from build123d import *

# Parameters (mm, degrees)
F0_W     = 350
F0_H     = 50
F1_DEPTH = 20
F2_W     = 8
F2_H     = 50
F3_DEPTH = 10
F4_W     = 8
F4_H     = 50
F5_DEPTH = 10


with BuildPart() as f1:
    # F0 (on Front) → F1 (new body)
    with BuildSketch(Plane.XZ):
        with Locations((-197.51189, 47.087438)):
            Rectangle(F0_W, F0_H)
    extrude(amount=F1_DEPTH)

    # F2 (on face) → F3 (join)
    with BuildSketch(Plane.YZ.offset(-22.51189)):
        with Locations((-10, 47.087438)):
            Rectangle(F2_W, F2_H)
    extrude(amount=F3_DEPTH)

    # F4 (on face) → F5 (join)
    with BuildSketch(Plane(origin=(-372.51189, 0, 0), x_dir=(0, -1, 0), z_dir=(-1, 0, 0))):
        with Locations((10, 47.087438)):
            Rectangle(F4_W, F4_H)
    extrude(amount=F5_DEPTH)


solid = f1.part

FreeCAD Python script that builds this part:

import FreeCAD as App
import Part
import Sketcher


def add_polygon(sketch, points):
    """Adds a closed chain of lines whose ends are joined by coincident constraints."""
    first, n = sketch.GeometryCount, len(points)
    for a, b in zip(points, points[1:] + points[:1]):
        sketch.addGeometry(Part.LineSegment(App.Vector(*a, 0), App.Vector(*b, 0)), False)
    for i in range(n):
        sketch.addConstraint(Sketcher.Constraint("Coincident", first + i, 2, first + (i + 1) % n, 1))

doc = App.newDocument("Part")
body = doc.addObject("PartDesign::Body", "Body")

sketch1 = doc.addObject("Sketcher::SketchObject", "Sketch")
body.addObject(sketch1)
sketch1.AttachmentSupport = (doc.XZ_Plane, [""])
sketch1.MapMode = "FlatFace"
add_polygon(sketch1, [(-372.51189, 72.087438), (-372.51189, 22.087438), (-22.51189, 22.087438), (-22.51189, 72.087438)])
sketch1.addConstraint(Sketcher.Constraint("Vertical", 0))
sketch1.addConstraint(Sketcher.Constraint("Horizontal", 1))
sketch1.addConstraint(Sketcher.Constraint("Vertical", 2))
sketch1.addConstraint(Sketcher.Constraint("Horizontal", 3))
sketch1.addConstraint(Sketcher.Constraint("DistanceX", 1, 1, 1, 2, 350.0))
sketch1.addConstraint(Sketcher.Constraint("DistanceY", 0, 2, 0, 1, 50.0))
sketch1.addConstraint(Sketcher.Constraint("DistanceX", 0, 2, -1, 1, 372.51189))
sketch1.addConstraint(Sketcher.Constraint("DistanceY", -1, 1, 2, 2, 72.087438))
pad1 = doc.addObject("PartDesign::Pad", "Pad")
body.addObject(pad1)
pad1.Profile = sketch1
pad1.Length = 20

sketch2 = doc.addObject("Sketcher::SketchObject", "Sketch001")
body.addObject(sketch2)
sketch2.AttachmentSupport = (doc.YZ_Plane, [""])
sketch2.MapMode = "FlatFace"
sketch2.AttachmentOffset = App.Placement(App.Vector(0, 0, -22.51189), App.Rotation())
add_polygon(sketch2, [(-14, 72.087438), (-14, 22.087438), (-6, 22.087438), (-6, 72.087438)])
sketch2.addConstraint(Sketcher.Constraint("Vertical", 0))
sketch2.addConstraint(Sketcher.Constraint("Horizontal", 1))
sketch2.addConstraint(Sketcher.Constraint("Vertical", 2))
sketch2.addConstraint(Sketcher.Constraint("Horizontal", 3))
sketch2.addConstraint(Sketcher.Constraint("DistanceX", 1, 1, 1, 2, 8.0))
sketch2.addConstraint(Sketcher.Constraint("DistanceY", 0, 2, 0, 1, 50.0))
sketch2.addConstraint(Sketcher.Constraint("DistanceX", 0, 2, -1, 1, 14.0))
sketch2.addConstraint(Sketcher.Constraint("DistanceY", -1, 1, 2, 2, 72.087438))
pad2 = doc.addObject("PartDesign::Pad", "Pad001")
body.addObject(pad2)
pad2.Profile = sketch2
pad2.Length = 10

sketch3 = doc.addObject("Sketcher::SketchObject", "Sketch002")
body.addObject(sketch3)
sketch3.AttachmentSupport = (doc.YZ_Plane, [""])
sketch3.MapMode = "FlatFace"
sketch3.AttachmentOffset = App.Placement(App.Vector(0, 0, -372.51189), App.Rotation())
add_polygon(sketch3, [(-6, 72.087438), (-6, 22.087438), (-14, 22.087438), (-14, 72.087438)])
sketch3.addConstraint(Sketcher.Constraint("Vertical", 0))
sketch3.addConstraint(Sketcher.Constraint("Horizontal", 1))
sketch3.addConstraint(Sketcher.Constraint("Vertical", 2))
sketch3.addConstraint(Sketcher.Constraint("Horizontal", 3))
sketch3.addConstraint(Sketcher.Constraint("DistanceX", 1, 2, 1, 1, 8.0))
sketch3.addConstraint(Sketcher.Constraint("DistanceY", 0, 2, 0, 1, 50.0))
sketch3.addConstraint(Sketcher.Constraint("DistanceX", 0, 2, -1, 1, 6.0))
sketch3.addConstraint(Sketcher.Constraint("DistanceY", -1, 1, 2, 2, 72.087438))
pad3 = doc.addObject("PartDesign::Pad", "Pad002")
body.addObject(pad3)
pad3.Profile = sketch3
pad3.Length = 10
pad3.Reversed = True

doc.recompute()
